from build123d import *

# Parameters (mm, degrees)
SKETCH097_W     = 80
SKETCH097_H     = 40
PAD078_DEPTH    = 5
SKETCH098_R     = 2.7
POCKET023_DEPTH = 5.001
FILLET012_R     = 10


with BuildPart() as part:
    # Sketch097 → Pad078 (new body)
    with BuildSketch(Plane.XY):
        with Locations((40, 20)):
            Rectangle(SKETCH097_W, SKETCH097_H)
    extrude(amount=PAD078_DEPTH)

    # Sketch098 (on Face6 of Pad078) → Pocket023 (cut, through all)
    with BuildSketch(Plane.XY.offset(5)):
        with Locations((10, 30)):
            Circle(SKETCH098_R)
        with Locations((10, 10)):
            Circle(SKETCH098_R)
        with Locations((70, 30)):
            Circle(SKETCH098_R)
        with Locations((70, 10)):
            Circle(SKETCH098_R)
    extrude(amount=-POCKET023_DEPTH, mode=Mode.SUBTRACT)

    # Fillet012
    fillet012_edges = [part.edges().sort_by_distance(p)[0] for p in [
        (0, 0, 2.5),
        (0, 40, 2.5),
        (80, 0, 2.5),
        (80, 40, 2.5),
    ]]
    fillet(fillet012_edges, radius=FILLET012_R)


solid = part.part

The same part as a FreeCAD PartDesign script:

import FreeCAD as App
import Part
import Sketcher

V = App.Vector


def edges_at(feature, points):
    """Names of the edges that pass closest to the given points."""
    edges = feature.Shape.Edges
    near = lambda p: min(range(len(edges)), key=lambda i: edges[i].distToShape(Part.Vertex(*p))[0])
    return sorted({f"Edge{near(p) + 1}" for p in points})


def add_polygon(sketch, points):
    """Adds a closed chain of lines whose ends are joined by coincident constraints."""
    first, n = sketch.GeometryCount, len(points)
    for a, b in zip(points, points[1:] + points[:1]):
        sketch.addGeometry(Part.LineSegment(App.Vector(*a, 0), App.Vector(*b, 0)), False)
    for i in range(n):
        sketch.addConstraint(Sketcher.Constraint("Coincident", first + i, 2, first + (i + 1) % n, 1))

doc = App.newDocument("Part")
body = doc.addObject("PartDesign::Body", "Body")

sketch1 = doc.addObject("Sketcher::SketchObject", "Sketch")
body.addObject(sketch1)
sketch1.AttachmentSupport = (doc.XY_Plane, [""])
sketch1.MapMode = "FlatFace"
add_polygon(sketch1, [(0, 40), (0, 0), (80, 0), (80, 40)])
sketch1.addConstraint([
    Sketcher.Constraint("Vertical", 0),
    Sketcher.Constraint("Horizontal", 1),
    Sketcher.Constraint("Vertical", 2),
    Sketcher.Constraint("Horizontal", 3),
    Sketcher.Constraint("Coincident", 0, 2, -1, 1),
    Sketcher.Constraint("DistanceX", 1, 1, 1, 2, 80.0),
    Sketcher.Constraint("DistanceY", 0, 2, 0, 1, 40.0),
])
pad1 = doc.addObject("PartDesign::Pad", "Pad")
body.addObject(pad1)
pad1.Profile = sketch1
pad1.Length = 5

sketch2 = doc.addObject("Sketcher::SketchObject", "Sketch001")
body.addObject(sketch2)
sketch2.AttachmentSupport = (doc.XY_Plane, [""])
sketch2.MapMode = "FlatFace"
sketch2.AttachmentOffset = App.Placement(V(0, 0, 5), App.Rotation())
sketch2.addGeometry([
    Part.Circle(V(10, 30, 0), V(0, 0, 1), 2.7),
    Part.Circle(V(10, 10, 0), V(0, 0, 1), 2.7),
    Part.Circle(V(70, 30, 0), V(0, 0, 1), 2.7),
    Part.Circle(V(70, 10, 0), V(0, 0, 1), 2.7),
], False)
sketch2.addConstraint([
    Sketcher.Constraint("Equal", 0, 1),
    Sketcher.Constraint("Equal", 1, 2),
    Sketcher.Constraint("Equal", 2, 3),
    Sketcher.Constraint("Horizontal", 0, 3, 2, 3),
    Sketcher.Constraint("Horizontal", 1, 3, 3, 3),
    Sketcher.Constraint("Vertical", 0, 3, 1, 3),
    Sketcher.Constraint("Vertical", 2, 3, 3, 3),
    Sketcher.Constraint("Diameter", 0, 5.4),
    Sketcher.Constraint("DistanceX", -1, 1, 0, 3, 10.0),
    Sketcher.Constraint("DistanceY", -1, 1, 0, 3, 30.0),
    Sketcher.Constraint("DistanceY", -1, 1, 1, 3, 10.0),
    Sketcher.Constraint("DistanceX", -1, 1, 2, 3, 70.0),
])
pocket1 = doc.addObject("PartDesign::Pocket", "Pocket")
body.addObject(pocket1)
pocket1.Profile = sketch2
pocket1.Type = "ThroughAll"
doc.recompute()

fillet = doc.addObject("PartDesign::Fillet", "Fillet")
body.addObject(fillet)
fillet.Base = (pocket1, edges_at(pocket1, [
    (0, 0, 2.5),
    (0, 40, 2.5),
    (80, 0, 2.5),
    (80, 40, 2.5),
]))
fillet.Radius = 10

doc.recompute()
